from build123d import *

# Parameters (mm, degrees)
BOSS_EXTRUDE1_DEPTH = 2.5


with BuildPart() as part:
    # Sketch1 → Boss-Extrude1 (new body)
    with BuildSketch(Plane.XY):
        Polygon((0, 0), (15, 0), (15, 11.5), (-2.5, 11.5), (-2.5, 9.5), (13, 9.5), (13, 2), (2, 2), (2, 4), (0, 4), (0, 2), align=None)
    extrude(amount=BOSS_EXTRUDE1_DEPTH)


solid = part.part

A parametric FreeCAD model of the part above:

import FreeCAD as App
import Part
import Sketcher

V = App.Vector


def add_polygon(sketch, points):
    """Adds a closed chain of lines whose ends are joined by coincident constraints."""
    first, n = sketch.GeometryCount, len(points)
    for a, b in zip(points, points[1:] + points[:1]):
        sketch.addGeometry(Part.LineSegment(App.Vector(*a, 0), App.Vector(*b, 0)), False)
    for i in range(n):
        sketch.addConstraint(Sketcher.Constraint("Coincident", first + i, 2, first + (i + 1) % n, 1))

doc = App.newDocument("Part")
params = doc.addObject("Spreadsheet::Sheet", "Params")
for row, (alias, value) in enumerate([
    ("sketch1_width", "15 mm"),
    ("sketch1_width2", "11 mm"),
    ("sketch1_width3", "2 mm"),
    ("sketch1_height", "4 mm"),
    ("sketch1_width4", "17.5 mm"),
    ("pad1_length", "2.5 mm"),
], start=1):
    params.set(f"A{row}", alias)
    params.set(f"B{row}", "=" + value)
    params.setAlias(f"B{row}", alias)

body = doc.addObject("PartDesign::Body", "Body")

sketch1 = body.newObject("Sketcher::SketchObject", "Sketch")
sketch1.AttachmentSupport = (doc.getObject("XY_Plane"), [""])
sketch1.MapMode = "FlatFace"
add_polygon(sketch1, [(0, 0), (15, 0), (15, 11.5), (-2.5, 11.5), (-2.5, 9.5), (13, 9.5), (13, 2), (2, 2), (2, 4), (0, 4)])
sketch1.addConstraint([
    Sketcher.Constraint("Horizontal", 0),
    Sketcher.Constraint("Vertical", 1),
    Sketcher.Constraint("Horizontal", 2),
    Sketcher.Constraint("Vertical", 3),
    Sketcher.Constraint("Horizontal", 4),
    Sketcher.Constraint("Vertical", 5),
    Sketcher.Constraint("Horizontal", 6),
    Sketcher.Constraint("Vertical", 7),
    Sketcher.Constraint("Horizontal", 8),
    Sketcher.Constraint("Vertical", 9),
    Sketcher.Constraint("Coincident", 9, 2, -1, 1),
    Sketcher.Constraint("Equal", 8, 3),
    Sketcher.Constraint("Equal", 3, 7),
    Sketcher.Constraint("DistanceX", 0, 1, 0, 2, 15.0),
    Sketcher.Constraint("DistanceX", 6, 2, 6, 1, 11.0),
    Sketcher.Constraint("DistanceX", 8, 2, 8, 1, 2.0),
    Sketcher.Constraint("DistanceY", 9, 2, 9, 1, 4.0),
    Sketcher.Constraint("DistanceX", 2, 2, 2, 1, 17.5),
    Sketcher.Constraint("DistanceY", 1, 1, 1, 2, 11.5),
])
sketch1.setExpression("Constraints[23]", "Params.sketch1_width")
sketch1.setExpression("Constraints[24]", "Params.sketch1_width2")
sketch1.setExpression("Constraints[25]", "Params.sketch1_width3")
sketch1.setExpression("Constraints[26]", "Params.sketch1_height")
sketch1.setExpression("Constraints[27]", "Params.sketch1_width4")
pad1 = body.newObject("PartDesign::Pad", "Pad")
pad1.Profile = sketch1
pad1.setExpression("Length", "Params.pad1_length")

doc.recompute()
